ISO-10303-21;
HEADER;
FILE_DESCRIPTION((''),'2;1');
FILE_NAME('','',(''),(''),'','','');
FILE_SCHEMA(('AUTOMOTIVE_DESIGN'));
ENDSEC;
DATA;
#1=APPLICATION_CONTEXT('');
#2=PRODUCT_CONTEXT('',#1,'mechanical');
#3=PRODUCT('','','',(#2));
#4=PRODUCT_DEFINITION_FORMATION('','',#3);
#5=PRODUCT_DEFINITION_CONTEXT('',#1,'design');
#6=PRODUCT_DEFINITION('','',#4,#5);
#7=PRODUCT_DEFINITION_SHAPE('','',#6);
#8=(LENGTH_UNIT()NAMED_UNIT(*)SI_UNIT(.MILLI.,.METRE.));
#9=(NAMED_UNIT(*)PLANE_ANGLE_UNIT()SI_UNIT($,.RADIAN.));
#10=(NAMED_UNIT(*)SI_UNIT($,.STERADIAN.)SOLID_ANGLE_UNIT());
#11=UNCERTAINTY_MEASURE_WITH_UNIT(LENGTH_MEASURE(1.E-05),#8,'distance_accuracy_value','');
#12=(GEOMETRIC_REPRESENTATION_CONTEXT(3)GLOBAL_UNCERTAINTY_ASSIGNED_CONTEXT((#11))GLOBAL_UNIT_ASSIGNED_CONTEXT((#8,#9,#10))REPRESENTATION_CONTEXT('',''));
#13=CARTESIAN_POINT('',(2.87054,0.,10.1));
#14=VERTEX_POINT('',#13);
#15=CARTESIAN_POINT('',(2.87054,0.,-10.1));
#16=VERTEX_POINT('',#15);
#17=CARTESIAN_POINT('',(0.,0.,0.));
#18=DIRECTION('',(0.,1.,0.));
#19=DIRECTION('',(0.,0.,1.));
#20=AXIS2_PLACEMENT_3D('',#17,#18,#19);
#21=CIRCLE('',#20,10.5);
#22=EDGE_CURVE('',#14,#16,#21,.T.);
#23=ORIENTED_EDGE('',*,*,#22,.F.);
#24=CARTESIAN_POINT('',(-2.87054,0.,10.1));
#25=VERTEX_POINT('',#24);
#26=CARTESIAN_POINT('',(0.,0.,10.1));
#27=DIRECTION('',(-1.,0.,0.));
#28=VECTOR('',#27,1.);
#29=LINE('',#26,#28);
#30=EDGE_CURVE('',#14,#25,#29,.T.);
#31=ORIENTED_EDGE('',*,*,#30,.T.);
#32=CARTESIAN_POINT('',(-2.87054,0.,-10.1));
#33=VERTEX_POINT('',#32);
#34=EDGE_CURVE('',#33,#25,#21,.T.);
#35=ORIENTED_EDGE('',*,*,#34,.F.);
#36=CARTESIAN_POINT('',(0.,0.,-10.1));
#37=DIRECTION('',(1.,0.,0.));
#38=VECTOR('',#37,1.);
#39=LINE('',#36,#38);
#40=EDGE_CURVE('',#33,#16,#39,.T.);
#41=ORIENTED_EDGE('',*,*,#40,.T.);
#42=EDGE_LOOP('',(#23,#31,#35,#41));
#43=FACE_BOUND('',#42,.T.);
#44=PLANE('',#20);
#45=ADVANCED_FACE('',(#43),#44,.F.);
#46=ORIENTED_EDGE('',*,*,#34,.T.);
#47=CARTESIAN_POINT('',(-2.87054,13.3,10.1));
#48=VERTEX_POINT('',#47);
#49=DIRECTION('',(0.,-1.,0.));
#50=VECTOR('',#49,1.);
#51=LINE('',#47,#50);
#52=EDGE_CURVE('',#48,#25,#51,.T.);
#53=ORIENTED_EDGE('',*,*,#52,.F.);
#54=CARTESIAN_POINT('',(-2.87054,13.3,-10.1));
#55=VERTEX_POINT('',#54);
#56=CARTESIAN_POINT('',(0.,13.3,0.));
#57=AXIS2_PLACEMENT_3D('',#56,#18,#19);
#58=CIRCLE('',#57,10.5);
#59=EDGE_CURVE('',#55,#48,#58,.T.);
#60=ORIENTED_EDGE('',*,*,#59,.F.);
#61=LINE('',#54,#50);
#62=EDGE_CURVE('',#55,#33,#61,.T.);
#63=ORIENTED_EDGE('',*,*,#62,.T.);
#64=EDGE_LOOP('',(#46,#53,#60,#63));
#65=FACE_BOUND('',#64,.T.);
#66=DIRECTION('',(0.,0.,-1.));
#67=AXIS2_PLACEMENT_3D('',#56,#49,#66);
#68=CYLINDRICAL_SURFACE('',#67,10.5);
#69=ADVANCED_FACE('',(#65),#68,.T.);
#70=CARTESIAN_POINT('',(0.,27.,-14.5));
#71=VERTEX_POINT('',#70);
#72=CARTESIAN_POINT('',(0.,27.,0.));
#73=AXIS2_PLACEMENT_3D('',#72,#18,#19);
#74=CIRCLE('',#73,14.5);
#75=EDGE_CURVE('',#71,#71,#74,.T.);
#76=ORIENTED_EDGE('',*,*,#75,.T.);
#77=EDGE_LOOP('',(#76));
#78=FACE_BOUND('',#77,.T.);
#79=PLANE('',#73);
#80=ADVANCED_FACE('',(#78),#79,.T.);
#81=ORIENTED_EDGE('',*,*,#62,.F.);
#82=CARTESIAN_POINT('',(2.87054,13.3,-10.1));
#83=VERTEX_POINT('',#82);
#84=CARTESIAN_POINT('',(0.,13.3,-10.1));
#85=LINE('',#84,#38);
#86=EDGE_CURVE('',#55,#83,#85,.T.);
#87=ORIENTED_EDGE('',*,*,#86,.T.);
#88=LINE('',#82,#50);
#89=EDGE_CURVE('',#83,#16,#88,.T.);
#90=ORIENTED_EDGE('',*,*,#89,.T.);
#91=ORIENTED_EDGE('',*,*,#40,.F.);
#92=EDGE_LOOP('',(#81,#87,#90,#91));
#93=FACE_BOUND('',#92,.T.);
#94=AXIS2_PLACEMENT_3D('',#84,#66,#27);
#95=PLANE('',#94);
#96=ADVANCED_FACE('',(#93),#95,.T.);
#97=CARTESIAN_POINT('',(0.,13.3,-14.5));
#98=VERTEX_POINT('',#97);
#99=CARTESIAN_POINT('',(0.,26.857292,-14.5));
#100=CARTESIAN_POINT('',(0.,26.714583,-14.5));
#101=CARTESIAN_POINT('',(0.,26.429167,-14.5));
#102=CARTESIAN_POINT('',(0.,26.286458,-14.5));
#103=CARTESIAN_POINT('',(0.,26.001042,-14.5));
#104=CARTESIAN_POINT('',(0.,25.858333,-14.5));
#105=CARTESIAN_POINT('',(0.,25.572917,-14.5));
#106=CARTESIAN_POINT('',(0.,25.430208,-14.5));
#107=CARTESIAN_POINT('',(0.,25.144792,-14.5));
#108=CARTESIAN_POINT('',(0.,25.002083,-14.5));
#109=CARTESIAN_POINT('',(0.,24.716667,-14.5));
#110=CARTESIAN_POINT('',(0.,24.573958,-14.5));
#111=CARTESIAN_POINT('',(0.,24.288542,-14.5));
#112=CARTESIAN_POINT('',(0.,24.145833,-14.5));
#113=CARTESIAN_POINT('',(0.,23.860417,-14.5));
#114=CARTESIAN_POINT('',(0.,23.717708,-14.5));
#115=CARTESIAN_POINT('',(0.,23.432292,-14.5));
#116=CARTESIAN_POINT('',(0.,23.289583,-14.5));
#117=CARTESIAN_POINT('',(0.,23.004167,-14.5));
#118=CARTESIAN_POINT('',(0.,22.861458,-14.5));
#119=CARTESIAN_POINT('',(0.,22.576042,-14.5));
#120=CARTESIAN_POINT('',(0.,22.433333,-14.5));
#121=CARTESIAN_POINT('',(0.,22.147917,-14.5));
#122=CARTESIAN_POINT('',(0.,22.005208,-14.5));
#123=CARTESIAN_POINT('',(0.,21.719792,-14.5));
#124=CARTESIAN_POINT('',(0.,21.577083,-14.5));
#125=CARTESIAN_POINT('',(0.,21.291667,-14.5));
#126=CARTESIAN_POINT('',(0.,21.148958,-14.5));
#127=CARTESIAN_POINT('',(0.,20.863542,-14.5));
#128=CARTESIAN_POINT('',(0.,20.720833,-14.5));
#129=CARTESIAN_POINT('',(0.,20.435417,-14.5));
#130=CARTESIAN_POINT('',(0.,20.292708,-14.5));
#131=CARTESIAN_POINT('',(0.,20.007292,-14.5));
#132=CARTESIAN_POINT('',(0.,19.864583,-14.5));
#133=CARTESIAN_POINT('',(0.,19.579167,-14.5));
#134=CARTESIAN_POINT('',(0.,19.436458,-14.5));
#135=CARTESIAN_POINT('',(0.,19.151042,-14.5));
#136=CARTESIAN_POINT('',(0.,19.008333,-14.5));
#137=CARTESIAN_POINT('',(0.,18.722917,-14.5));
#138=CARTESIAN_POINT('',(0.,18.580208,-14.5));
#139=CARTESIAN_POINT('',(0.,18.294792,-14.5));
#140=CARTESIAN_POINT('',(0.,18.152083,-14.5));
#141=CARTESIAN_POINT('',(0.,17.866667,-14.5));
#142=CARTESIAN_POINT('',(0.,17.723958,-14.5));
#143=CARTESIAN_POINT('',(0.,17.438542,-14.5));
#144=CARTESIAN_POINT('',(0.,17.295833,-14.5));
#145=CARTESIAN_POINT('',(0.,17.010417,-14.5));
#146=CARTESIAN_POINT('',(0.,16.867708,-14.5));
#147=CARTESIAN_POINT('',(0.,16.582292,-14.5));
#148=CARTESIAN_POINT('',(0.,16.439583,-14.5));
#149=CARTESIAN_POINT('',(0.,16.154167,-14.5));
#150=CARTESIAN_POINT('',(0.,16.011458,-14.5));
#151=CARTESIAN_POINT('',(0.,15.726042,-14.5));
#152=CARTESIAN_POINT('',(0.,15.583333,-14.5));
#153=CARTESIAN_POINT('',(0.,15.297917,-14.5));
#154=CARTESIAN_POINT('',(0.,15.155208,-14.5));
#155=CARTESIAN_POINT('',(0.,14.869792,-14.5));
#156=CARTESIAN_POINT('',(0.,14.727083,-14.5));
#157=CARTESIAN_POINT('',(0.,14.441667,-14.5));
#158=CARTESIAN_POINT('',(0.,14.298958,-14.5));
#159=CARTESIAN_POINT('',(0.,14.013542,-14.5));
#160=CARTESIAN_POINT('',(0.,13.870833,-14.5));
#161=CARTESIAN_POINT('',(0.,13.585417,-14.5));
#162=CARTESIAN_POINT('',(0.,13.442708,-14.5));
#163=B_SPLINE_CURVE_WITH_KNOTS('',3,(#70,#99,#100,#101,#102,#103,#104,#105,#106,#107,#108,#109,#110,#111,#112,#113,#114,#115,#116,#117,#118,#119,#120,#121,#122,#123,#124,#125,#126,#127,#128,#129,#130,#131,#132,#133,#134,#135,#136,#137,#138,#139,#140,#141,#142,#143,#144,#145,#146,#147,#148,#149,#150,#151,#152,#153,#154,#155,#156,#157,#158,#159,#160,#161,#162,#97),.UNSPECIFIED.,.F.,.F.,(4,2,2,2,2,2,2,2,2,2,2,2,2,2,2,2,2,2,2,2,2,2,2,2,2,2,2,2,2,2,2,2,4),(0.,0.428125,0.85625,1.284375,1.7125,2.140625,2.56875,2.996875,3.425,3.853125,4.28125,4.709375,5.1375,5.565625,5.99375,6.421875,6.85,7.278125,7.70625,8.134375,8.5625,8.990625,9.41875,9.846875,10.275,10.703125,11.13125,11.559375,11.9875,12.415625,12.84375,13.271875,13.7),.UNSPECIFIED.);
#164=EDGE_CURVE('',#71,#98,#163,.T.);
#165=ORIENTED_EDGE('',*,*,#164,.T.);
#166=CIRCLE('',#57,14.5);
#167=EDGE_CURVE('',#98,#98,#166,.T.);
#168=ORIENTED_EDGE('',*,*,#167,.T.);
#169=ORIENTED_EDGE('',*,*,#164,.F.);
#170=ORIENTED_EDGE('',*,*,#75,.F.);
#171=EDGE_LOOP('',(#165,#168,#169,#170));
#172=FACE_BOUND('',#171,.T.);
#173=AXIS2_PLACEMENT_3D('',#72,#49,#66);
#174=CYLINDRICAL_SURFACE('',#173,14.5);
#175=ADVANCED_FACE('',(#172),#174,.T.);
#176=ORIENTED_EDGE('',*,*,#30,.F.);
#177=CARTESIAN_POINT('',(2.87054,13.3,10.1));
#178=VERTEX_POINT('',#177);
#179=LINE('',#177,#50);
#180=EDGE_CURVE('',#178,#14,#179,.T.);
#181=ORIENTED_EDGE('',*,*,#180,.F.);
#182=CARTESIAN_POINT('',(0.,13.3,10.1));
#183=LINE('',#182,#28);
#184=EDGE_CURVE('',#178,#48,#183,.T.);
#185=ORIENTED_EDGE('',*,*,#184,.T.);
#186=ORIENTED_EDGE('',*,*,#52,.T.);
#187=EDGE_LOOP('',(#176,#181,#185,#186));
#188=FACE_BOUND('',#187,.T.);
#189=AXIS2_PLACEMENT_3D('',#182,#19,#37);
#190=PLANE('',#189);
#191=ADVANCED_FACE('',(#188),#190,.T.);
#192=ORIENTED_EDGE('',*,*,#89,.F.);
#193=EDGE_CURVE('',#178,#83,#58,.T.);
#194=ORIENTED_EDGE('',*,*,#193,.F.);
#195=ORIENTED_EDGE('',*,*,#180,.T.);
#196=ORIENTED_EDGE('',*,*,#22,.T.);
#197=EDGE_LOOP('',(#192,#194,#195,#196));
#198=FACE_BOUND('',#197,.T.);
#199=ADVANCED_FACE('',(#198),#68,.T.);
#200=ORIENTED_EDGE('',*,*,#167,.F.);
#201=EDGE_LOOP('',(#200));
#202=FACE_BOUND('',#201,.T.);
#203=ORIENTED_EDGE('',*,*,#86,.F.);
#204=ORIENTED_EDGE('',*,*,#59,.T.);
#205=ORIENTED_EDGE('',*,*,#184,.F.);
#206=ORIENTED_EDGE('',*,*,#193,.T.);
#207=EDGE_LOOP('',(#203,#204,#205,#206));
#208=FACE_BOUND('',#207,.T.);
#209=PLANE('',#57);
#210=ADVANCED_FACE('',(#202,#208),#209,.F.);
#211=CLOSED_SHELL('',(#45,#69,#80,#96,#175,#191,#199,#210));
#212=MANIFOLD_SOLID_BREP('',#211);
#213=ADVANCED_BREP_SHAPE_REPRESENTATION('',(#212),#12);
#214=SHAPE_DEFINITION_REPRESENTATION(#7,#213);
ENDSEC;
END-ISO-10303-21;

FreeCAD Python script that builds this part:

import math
import FreeCAD as App
import Part
import Sketcher

V = App.Vector

doc = App.newDocument("Part")
body = doc.addObject("PartDesign::Body", "Body")

sketch1 = doc.addObject("Sketcher::SketchObject", "Sketch")
body.addObject(sketch1)
sketch1.AttachmentSupport = (doc.XZ_Plane, [""])
sketch1.MapMode = "FlatFace"
sketch1.addGeometry([
    Part.LineSegment(V(3, -10, 0), V(-3, -10, 0)),
    Part.ArcOfCircle(Part.Circle(V(0, 0, 0), V(0, 0, 1), 10), math.radians(106), math.radians(254)),
    Part.LineSegment(V(-3, 10, 0), V(3, 10, 0)),
    Part.ArcOfCircle(Part.Circle(V(0, 0, 0), V(0, 0, 1), 10), math.radians(0), math.radians(74)),
    Part.ArcOfCircle(Part.Circle(V(0, 0, 0), V(0, 0, 1), 10), math.radians(-74), math.radians(0)),
], False)
sketch1.addConstraint([
    Sketcher.Constraint("Coincident", 0, 2, 1, 2),
    Sketcher.Constraint("Coincident", 1, 1, 2, 1),
    Sketcher.Constraint("Coincident", 2, 2, 3, 2),
    Sketcher.Constraint("Tangent", 3, 1, 4, 2),
    Sketcher.Constraint("Coincident", 4, 1, 0, 1),
    Sketcher.Constraint("Horizontal", 0),
    Sketcher.Constraint("Horizontal", 2),
    Sketcher.Constraint("Coincident", 1, 3, -1, 1),
    Sketcher.Constraint("Coincident", 3, 3, -1, 1),
    Sketcher.Constraint("Equal", 1, 3),
    Sketcher.Constraint("Equal", 3, 4),
    Sketcher.Constraint("PointOnObject", 3, 1, -1),
    Sketcher.Constraint("Vertical", 0, 2, 1, 1),
    Sketcher.Constraint("Radius", 1, 10.5),
    Sketcher.Constraint("DistanceY", 0, 2, -1, 1, 10.1),
])
pad1 = doc.addObject("PartDesign::Pad", "Pad")
body.addObject(pad1)
pad1.Profile = sketch1
pad1.Length = 13.3
pad1.Reversed = True

sketch2 = doc.addObject("Sketcher::SketchObject", "Sketch001")
body.addObject(sketch2)
sketch2.AttachmentSupport = (doc.XZ_Plane, [""])
sketch2.MapMode = "FlatFace"
sketch2.AttachmentOffset = App.Placement(V(0, 0, -13.3), App.Rotation())
sketch2.addGeometry(Part.Circle(V(0, 0, 0), V(0, 0, 1), 14), False)
sketch2.addConstraint([
    Sketcher.Constraint("Coincident", 0, 3, -1, 1),
    Sketcher.Constraint("Diameter", 0, 29.0),
])
pad2 = doc.addObject("PartDesign::Pad", "Pad001")
body.addObject(pad2)
pad2.Profile = sketch2
pad2.Length = 13.7
pad2.Reversed = True

doc.recompute()
